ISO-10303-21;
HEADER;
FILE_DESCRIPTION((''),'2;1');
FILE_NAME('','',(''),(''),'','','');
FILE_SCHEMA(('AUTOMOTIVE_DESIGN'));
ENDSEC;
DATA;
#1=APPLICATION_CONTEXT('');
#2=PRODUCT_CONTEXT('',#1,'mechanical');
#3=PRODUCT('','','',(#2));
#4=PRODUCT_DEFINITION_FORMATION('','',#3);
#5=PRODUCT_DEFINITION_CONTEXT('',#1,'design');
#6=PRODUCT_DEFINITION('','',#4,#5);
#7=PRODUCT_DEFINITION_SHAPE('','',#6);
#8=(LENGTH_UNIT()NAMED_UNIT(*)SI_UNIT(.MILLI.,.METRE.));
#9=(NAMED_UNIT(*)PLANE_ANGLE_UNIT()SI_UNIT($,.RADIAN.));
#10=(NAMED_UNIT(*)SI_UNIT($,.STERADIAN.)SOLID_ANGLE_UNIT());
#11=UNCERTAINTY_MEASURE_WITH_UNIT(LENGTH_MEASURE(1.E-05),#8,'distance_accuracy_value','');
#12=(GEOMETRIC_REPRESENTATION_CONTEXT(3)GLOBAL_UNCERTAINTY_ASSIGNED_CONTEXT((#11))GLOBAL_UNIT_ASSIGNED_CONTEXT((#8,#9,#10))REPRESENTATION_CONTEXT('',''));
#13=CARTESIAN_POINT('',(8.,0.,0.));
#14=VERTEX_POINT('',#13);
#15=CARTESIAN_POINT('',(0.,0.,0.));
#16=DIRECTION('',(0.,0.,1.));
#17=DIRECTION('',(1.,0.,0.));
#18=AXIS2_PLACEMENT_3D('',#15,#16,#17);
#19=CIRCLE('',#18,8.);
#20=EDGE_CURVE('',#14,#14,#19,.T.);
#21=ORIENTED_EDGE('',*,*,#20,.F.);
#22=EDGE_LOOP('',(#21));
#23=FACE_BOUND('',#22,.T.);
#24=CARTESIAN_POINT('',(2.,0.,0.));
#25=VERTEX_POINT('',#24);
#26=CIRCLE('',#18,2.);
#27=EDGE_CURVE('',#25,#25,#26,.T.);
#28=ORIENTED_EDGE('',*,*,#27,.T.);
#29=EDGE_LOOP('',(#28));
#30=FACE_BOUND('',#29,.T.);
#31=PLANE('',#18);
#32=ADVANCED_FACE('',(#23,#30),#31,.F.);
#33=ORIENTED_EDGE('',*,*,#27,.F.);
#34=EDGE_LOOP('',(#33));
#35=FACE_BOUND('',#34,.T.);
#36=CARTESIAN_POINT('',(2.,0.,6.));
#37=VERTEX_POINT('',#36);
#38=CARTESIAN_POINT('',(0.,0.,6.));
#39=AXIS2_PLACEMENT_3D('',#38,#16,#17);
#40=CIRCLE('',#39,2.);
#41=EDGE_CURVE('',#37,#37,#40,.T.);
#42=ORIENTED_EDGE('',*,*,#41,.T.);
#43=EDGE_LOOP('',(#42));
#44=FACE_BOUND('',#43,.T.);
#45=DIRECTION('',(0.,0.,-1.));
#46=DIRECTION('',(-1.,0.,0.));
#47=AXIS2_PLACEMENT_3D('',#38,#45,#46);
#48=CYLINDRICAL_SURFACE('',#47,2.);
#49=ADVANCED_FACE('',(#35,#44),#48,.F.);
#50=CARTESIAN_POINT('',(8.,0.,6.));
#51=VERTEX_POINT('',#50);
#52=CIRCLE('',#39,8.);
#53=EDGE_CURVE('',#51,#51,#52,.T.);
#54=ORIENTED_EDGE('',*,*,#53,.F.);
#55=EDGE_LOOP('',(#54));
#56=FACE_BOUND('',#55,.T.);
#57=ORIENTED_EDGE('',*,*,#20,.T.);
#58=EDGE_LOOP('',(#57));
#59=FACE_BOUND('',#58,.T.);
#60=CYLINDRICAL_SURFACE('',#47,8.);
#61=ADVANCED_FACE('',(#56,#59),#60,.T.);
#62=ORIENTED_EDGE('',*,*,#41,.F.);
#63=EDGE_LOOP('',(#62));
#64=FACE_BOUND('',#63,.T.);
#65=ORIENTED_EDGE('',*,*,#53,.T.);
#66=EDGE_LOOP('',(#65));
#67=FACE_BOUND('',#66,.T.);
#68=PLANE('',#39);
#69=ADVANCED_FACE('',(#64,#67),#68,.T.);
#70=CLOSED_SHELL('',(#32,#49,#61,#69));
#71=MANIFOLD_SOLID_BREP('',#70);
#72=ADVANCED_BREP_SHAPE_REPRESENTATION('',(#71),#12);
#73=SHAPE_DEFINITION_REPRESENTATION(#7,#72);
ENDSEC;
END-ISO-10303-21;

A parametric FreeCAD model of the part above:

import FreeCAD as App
import Part
import Sketcher

V = App.Vector
Q = App.Units.Quantity

doc = App.newDocument("Part")
body = doc.addObject("PartDesign::Body", "Body")

# Sketch on XY plane
sketch1 = doc.addObject("Sketcher::SketchObject", "Sketch")
body.addObject(sketch1)
sketch1.AttachmentSupport = (doc.XY_Plane, [""])
sketch1.MapMode = "FlatFace"
sketch1.addGeometry([
    Part.Circle(V(0, 0, 0), V(0, 0, 1), 8),
    Part.Circle(V(0, 0, 0), V(0, 0, 1), 2),
], False)
sketch1.addConstraint([
    Sketcher.Constraint("Coincident", 0, 3, -1, 1),
    Sketcher.Constraint("Coincident", 1, 3, -1, 1),
    Sketcher.Constraint("Diameter", 0, Q("16 mm")),
    Sketcher.Constraint("Diameter", 1, Q("4 mm")),
])
pad1 = doc.addObject("PartDesign::Pad", "Pad")
body.addObject(pad1)
pad1.Profile = sketch1
pad1.Length = 6

doc.recompute()
